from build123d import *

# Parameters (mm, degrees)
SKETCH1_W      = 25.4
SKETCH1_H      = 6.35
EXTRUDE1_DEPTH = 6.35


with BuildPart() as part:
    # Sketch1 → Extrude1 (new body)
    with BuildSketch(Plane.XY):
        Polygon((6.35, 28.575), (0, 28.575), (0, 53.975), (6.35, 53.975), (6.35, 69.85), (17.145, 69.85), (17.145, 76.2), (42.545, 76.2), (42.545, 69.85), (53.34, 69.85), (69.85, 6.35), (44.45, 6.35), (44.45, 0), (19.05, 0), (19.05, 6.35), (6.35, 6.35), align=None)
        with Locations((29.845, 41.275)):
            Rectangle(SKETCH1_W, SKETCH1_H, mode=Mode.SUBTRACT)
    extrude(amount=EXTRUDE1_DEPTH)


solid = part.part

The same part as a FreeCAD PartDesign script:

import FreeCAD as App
import Part
import Sketcher
from FreeCAD import Vector
Q = App.Units.Quantity

doc = App.newDocument("Part")
body = doc.addObject("PartDesign::Body", "Body")

# Sketch on XY plane
sketch1 = body.newObject("Sketcher::SketchObject", "Sketch")
sketch1.AttachmentSupport = (doc.getObject("XY_Plane"), [""])
sketch1.MapMode = "FlatFace"
sketch1.addGeometry(Part.LineSegment(Vector(0, 29, 0), Vector(6, 29, 0)), False)
sketch1.addGeometry(Part.LineSegment(Vector(6, 29, 0), Vector(6, 6, 0)), False)
sketch1.addGeometry(Part.LineSegment(Vector(6, 6, 0), Vector(19, 6, 0)), False)
sketch1.addGeometry(Part.LineSegment(Vector(19, 6, 0), Vector(19, 0, 0)), False)
sketch1.addGeometry(Part.LineSegment(Vector(19, 0, 0), Vector(44, 0, 0)), False)
sketch1.addGeometry(Part.LineSegment(Vector(44, 0, 0), Vector(44, 6, 0)), False)
sketch1.addGeometry(Part.LineSegment(Vector(44, 6, 0), Vector(70, 6, 0)), False)
sketch1.addGeometry(Part.LineSegment(Vector(70, 6, 0), Vector(53, 70, 0)), False)
sketch1.addGeometry(Part.LineSegment(Vector(53, 70, 0), Vector(43, 70, 0)), False)
sketch1.addGeometry(Part.LineSegment(Vector(43, 70, 0), Vector(43, 76, 0)), False)
sketch1.addGeometry(Part.LineSegment(Vector(43, 76, 0), Vector(17, 76, 0)), False)
sketch1.addGeometry(Part.LineSegment(Vector(17, 76, 0), Vector(17, 70, 0)), False)
sketch1.addGeometry(Part.LineSegment(Vector(17, 70, 0), Vector(6, 70, 0)), False)
sketch1.addGeometry(Part.LineSegment(Vector(6, 70, 0), Vector(6, 54, 0)), False)
sketch1.addGeometry(Part.LineSegment(Vector(6, 54, 0), Vector(0, 54, 0)), False)
sketch1.addGeometry(Part.LineSegment(Vector(0, 54, 0), Vector(0, 29, 0)), False)
sketch1.addGeometry(Part.LineSegment(Vector(17, 38, 0), Vector(17, 44, 0)), False)
sketch1.addGeometry(Part.LineSegment(Vector(17, 44, 0), Vector(43, 44, 0)), False)
sketch1.addGeometry(Part.LineSegment(Vector(43, 44, 0), Vector(43, 38, 0)), False)
sketch1.addGeometry(Part.LineSegment(Vector(43, 38, 0), Vector(17, 38, 0)), False)
sketch1.addConstraint(Sketcher.Constraint("Coincident", 0, 2, 1, 1))
sketch1.addConstraint(Sketcher.Constraint("Coincident", 1, 2, 2, 1))
sketch1.addConstraint(Sketcher.Constraint("Coincident", 2, 2, 3, 1))
sketch1.addConstraint(Sketcher.Constraint("Coincident", 3, 2, 4, 1))
sketch1.addConstraint(Sketcher.Constraint("Coincident", 4, 2, 5, 1))
sketch1.addConstraint(Sketcher.Constraint("Coincident", 5, 2, 6, 1))
sketch1.addConstraint(Sketcher.Constraint("Coincident", 6, 2, 7, 1))
sketch1.addConstraint(Sketcher.Constraint("Coincident", 7, 2, 8, 1))
sketch1.addConstraint(Sketcher.Constraint("Coincident", 8, 2, 9, 1))
sketch1.addConstraint(Sketcher.Constraint("Coincident", 9, 2, 10, 1))
sketch1.addConstraint(Sketcher.Constraint("Coincident", 10, 2, 11, 1))
sketch1.addConstraint(Sketcher.Constraint("Coincident", 11, 2, 12, 1))
sketch1.addConstraint(Sketcher.Constraint("Coincident", 12, 2, 13, 1))
sketch1.addConstraint(Sketcher.Constraint("Coincident", 13, 2, 14, 1))
sketch1.addConstraint(Sketcher.Constraint("Coincident", 14, 2, 15, 1))
sketch1.addConstraint(Sketcher.Constraint("Coincident", 15, 2, 0, 1))
sketch1.addConstraint(Sketcher.Constraint("Coincident", 16, 2, 17, 1))
sketch1.addConstraint(Sketcher.Constraint("Coincident", 17, 2, 18, 1))
sketch1.addConstraint(Sketcher.Constraint("Coincident", 18, 2, 19, 1))
sketch1.addConstraint(Sketcher.Constraint("Coincident", 19, 2, 16, 1))
sketch1.addConstraint(Sketcher.Constraint("Horizontal", 0))
sketch1.addConstraint(Sketcher.Constraint("Vertical", 1))
sketch1.addConstraint(Sketcher.Constraint("Horizontal", 2))
sketch1.addConstraint(Sketcher.Constraint("Vertical", 3))
sketch1.addConstraint(Sketcher.Constraint("Horizontal", 4))
sketch1.addConstraint(Sketcher.Constraint("Vertical", 5))
sketch1.addConstraint(Sketcher.Constraint("Horizontal", 6))
sketch1.addConstraint(Sketcher.Constraint("Horizontal", 8))
sketch1.addConstraint(Sketcher.Constraint("Vertical", 9))
sketch1.addConstraint(Sketcher.Constraint("Horizontal", 10))
sketch1.addConstraint(Sketcher.Constraint("Vertical", 11))
sketch1.addConstraint(Sketcher.Constraint("Horizontal", 12))
sketch1.addConstraint(Sketcher.Constraint("Vertical", 13))
sketch1.addConstraint(Sketcher.Constraint("Horizontal", 14))
sketch1.addConstraint(Sketcher.Constraint("Vertical", 15))
sketch1.addConstraint(Sketcher.Constraint("Vertical", 16))
sketch1.addConstraint(Sketcher.Constraint("Horizontal", 17))
sketch1.addConstraint(Sketcher.Constraint("Vertical", 18))
sketch1.addConstraint(Sketcher.Constraint("Horizontal", 19))
sketch1.addConstraint(Sketcher.Constraint("PointOnObject", 3, 2, -1))
sketch1.addConstraint(Sketcher.Constraint("PointOnObject", 14, 2, -2))
sketch1.addConstraint(Sketcher.Constraint("Horizontal", 2, 2, 5, 2))
sketch1.addConstraint(Sketcher.Constraint("Horizontal", 8, 2, 11, 2))
sketch1.addConstraint(Sketcher.Constraint("Vertical", 1, 2, 12, 2))
sketch1.addConstraint(Sketcher.Constraint("Vertical", 11, 2, 16, 2))
sketch1.addConstraint(Sketcher.Constraint("Vertical", 9, 2, 17, 2))
sketch1.addConstraint(Sketcher.Constraint("Equal", 4, 6))
sketch1.addConstraint(Sketcher.Constraint("Equal", 6, 10))
sketch1.addConstraint(Sketcher.Constraint("Equal", 8, 12))
sketch1.addConstraint(Sketcher.Constraint("Equal", 14, 3))
sketch1.addConstraint(Sketcher.Constraint("Equal", 5, 9))
sketch1.addConstraint(Sketcher.Constraint("Equal", 19, 15))
sketch1.addConstraint(Sketcher.Constraint("Equal", 11, 16))
sketch1.addConstraint(Sketcher.Constraint("DistanceX", 4, 1, 4, 2, Q("1 in")))
sketch1.addConstraint(Sketcher.Constraint("DistanceX", 2, 1, 2, 2, Q("0.5 in")))
sketch1.addConstraint(Sketcher.Constraint("DistanceY", -1, 1, 9, 2, Q("3 in")))
sketch1.addConstraint(Sketcher.Constraint("DistanceY", 16, 2, 11, 2, Q("1 in")))
sketch1.addConstraint(Sketcher.Constraint("DistanceX", 0, 1, 0, 2, Q("0.25 in")))
sketch1.addConstraint(Sketcher.Constraint("DistanceX", -1, 1, 7, 2, Q("2.1 in")))
sketch1.addConstraint(Sketcher.Constraint("DistanceY", 1, 2, 1, 1, Q("0.875 in")))
pad1 = body.newObject("PartDesign::Pad", "Pad")
pad1.Profile = sketch1
pad1.Length = Q("0.25 in")

doc.recompute()
